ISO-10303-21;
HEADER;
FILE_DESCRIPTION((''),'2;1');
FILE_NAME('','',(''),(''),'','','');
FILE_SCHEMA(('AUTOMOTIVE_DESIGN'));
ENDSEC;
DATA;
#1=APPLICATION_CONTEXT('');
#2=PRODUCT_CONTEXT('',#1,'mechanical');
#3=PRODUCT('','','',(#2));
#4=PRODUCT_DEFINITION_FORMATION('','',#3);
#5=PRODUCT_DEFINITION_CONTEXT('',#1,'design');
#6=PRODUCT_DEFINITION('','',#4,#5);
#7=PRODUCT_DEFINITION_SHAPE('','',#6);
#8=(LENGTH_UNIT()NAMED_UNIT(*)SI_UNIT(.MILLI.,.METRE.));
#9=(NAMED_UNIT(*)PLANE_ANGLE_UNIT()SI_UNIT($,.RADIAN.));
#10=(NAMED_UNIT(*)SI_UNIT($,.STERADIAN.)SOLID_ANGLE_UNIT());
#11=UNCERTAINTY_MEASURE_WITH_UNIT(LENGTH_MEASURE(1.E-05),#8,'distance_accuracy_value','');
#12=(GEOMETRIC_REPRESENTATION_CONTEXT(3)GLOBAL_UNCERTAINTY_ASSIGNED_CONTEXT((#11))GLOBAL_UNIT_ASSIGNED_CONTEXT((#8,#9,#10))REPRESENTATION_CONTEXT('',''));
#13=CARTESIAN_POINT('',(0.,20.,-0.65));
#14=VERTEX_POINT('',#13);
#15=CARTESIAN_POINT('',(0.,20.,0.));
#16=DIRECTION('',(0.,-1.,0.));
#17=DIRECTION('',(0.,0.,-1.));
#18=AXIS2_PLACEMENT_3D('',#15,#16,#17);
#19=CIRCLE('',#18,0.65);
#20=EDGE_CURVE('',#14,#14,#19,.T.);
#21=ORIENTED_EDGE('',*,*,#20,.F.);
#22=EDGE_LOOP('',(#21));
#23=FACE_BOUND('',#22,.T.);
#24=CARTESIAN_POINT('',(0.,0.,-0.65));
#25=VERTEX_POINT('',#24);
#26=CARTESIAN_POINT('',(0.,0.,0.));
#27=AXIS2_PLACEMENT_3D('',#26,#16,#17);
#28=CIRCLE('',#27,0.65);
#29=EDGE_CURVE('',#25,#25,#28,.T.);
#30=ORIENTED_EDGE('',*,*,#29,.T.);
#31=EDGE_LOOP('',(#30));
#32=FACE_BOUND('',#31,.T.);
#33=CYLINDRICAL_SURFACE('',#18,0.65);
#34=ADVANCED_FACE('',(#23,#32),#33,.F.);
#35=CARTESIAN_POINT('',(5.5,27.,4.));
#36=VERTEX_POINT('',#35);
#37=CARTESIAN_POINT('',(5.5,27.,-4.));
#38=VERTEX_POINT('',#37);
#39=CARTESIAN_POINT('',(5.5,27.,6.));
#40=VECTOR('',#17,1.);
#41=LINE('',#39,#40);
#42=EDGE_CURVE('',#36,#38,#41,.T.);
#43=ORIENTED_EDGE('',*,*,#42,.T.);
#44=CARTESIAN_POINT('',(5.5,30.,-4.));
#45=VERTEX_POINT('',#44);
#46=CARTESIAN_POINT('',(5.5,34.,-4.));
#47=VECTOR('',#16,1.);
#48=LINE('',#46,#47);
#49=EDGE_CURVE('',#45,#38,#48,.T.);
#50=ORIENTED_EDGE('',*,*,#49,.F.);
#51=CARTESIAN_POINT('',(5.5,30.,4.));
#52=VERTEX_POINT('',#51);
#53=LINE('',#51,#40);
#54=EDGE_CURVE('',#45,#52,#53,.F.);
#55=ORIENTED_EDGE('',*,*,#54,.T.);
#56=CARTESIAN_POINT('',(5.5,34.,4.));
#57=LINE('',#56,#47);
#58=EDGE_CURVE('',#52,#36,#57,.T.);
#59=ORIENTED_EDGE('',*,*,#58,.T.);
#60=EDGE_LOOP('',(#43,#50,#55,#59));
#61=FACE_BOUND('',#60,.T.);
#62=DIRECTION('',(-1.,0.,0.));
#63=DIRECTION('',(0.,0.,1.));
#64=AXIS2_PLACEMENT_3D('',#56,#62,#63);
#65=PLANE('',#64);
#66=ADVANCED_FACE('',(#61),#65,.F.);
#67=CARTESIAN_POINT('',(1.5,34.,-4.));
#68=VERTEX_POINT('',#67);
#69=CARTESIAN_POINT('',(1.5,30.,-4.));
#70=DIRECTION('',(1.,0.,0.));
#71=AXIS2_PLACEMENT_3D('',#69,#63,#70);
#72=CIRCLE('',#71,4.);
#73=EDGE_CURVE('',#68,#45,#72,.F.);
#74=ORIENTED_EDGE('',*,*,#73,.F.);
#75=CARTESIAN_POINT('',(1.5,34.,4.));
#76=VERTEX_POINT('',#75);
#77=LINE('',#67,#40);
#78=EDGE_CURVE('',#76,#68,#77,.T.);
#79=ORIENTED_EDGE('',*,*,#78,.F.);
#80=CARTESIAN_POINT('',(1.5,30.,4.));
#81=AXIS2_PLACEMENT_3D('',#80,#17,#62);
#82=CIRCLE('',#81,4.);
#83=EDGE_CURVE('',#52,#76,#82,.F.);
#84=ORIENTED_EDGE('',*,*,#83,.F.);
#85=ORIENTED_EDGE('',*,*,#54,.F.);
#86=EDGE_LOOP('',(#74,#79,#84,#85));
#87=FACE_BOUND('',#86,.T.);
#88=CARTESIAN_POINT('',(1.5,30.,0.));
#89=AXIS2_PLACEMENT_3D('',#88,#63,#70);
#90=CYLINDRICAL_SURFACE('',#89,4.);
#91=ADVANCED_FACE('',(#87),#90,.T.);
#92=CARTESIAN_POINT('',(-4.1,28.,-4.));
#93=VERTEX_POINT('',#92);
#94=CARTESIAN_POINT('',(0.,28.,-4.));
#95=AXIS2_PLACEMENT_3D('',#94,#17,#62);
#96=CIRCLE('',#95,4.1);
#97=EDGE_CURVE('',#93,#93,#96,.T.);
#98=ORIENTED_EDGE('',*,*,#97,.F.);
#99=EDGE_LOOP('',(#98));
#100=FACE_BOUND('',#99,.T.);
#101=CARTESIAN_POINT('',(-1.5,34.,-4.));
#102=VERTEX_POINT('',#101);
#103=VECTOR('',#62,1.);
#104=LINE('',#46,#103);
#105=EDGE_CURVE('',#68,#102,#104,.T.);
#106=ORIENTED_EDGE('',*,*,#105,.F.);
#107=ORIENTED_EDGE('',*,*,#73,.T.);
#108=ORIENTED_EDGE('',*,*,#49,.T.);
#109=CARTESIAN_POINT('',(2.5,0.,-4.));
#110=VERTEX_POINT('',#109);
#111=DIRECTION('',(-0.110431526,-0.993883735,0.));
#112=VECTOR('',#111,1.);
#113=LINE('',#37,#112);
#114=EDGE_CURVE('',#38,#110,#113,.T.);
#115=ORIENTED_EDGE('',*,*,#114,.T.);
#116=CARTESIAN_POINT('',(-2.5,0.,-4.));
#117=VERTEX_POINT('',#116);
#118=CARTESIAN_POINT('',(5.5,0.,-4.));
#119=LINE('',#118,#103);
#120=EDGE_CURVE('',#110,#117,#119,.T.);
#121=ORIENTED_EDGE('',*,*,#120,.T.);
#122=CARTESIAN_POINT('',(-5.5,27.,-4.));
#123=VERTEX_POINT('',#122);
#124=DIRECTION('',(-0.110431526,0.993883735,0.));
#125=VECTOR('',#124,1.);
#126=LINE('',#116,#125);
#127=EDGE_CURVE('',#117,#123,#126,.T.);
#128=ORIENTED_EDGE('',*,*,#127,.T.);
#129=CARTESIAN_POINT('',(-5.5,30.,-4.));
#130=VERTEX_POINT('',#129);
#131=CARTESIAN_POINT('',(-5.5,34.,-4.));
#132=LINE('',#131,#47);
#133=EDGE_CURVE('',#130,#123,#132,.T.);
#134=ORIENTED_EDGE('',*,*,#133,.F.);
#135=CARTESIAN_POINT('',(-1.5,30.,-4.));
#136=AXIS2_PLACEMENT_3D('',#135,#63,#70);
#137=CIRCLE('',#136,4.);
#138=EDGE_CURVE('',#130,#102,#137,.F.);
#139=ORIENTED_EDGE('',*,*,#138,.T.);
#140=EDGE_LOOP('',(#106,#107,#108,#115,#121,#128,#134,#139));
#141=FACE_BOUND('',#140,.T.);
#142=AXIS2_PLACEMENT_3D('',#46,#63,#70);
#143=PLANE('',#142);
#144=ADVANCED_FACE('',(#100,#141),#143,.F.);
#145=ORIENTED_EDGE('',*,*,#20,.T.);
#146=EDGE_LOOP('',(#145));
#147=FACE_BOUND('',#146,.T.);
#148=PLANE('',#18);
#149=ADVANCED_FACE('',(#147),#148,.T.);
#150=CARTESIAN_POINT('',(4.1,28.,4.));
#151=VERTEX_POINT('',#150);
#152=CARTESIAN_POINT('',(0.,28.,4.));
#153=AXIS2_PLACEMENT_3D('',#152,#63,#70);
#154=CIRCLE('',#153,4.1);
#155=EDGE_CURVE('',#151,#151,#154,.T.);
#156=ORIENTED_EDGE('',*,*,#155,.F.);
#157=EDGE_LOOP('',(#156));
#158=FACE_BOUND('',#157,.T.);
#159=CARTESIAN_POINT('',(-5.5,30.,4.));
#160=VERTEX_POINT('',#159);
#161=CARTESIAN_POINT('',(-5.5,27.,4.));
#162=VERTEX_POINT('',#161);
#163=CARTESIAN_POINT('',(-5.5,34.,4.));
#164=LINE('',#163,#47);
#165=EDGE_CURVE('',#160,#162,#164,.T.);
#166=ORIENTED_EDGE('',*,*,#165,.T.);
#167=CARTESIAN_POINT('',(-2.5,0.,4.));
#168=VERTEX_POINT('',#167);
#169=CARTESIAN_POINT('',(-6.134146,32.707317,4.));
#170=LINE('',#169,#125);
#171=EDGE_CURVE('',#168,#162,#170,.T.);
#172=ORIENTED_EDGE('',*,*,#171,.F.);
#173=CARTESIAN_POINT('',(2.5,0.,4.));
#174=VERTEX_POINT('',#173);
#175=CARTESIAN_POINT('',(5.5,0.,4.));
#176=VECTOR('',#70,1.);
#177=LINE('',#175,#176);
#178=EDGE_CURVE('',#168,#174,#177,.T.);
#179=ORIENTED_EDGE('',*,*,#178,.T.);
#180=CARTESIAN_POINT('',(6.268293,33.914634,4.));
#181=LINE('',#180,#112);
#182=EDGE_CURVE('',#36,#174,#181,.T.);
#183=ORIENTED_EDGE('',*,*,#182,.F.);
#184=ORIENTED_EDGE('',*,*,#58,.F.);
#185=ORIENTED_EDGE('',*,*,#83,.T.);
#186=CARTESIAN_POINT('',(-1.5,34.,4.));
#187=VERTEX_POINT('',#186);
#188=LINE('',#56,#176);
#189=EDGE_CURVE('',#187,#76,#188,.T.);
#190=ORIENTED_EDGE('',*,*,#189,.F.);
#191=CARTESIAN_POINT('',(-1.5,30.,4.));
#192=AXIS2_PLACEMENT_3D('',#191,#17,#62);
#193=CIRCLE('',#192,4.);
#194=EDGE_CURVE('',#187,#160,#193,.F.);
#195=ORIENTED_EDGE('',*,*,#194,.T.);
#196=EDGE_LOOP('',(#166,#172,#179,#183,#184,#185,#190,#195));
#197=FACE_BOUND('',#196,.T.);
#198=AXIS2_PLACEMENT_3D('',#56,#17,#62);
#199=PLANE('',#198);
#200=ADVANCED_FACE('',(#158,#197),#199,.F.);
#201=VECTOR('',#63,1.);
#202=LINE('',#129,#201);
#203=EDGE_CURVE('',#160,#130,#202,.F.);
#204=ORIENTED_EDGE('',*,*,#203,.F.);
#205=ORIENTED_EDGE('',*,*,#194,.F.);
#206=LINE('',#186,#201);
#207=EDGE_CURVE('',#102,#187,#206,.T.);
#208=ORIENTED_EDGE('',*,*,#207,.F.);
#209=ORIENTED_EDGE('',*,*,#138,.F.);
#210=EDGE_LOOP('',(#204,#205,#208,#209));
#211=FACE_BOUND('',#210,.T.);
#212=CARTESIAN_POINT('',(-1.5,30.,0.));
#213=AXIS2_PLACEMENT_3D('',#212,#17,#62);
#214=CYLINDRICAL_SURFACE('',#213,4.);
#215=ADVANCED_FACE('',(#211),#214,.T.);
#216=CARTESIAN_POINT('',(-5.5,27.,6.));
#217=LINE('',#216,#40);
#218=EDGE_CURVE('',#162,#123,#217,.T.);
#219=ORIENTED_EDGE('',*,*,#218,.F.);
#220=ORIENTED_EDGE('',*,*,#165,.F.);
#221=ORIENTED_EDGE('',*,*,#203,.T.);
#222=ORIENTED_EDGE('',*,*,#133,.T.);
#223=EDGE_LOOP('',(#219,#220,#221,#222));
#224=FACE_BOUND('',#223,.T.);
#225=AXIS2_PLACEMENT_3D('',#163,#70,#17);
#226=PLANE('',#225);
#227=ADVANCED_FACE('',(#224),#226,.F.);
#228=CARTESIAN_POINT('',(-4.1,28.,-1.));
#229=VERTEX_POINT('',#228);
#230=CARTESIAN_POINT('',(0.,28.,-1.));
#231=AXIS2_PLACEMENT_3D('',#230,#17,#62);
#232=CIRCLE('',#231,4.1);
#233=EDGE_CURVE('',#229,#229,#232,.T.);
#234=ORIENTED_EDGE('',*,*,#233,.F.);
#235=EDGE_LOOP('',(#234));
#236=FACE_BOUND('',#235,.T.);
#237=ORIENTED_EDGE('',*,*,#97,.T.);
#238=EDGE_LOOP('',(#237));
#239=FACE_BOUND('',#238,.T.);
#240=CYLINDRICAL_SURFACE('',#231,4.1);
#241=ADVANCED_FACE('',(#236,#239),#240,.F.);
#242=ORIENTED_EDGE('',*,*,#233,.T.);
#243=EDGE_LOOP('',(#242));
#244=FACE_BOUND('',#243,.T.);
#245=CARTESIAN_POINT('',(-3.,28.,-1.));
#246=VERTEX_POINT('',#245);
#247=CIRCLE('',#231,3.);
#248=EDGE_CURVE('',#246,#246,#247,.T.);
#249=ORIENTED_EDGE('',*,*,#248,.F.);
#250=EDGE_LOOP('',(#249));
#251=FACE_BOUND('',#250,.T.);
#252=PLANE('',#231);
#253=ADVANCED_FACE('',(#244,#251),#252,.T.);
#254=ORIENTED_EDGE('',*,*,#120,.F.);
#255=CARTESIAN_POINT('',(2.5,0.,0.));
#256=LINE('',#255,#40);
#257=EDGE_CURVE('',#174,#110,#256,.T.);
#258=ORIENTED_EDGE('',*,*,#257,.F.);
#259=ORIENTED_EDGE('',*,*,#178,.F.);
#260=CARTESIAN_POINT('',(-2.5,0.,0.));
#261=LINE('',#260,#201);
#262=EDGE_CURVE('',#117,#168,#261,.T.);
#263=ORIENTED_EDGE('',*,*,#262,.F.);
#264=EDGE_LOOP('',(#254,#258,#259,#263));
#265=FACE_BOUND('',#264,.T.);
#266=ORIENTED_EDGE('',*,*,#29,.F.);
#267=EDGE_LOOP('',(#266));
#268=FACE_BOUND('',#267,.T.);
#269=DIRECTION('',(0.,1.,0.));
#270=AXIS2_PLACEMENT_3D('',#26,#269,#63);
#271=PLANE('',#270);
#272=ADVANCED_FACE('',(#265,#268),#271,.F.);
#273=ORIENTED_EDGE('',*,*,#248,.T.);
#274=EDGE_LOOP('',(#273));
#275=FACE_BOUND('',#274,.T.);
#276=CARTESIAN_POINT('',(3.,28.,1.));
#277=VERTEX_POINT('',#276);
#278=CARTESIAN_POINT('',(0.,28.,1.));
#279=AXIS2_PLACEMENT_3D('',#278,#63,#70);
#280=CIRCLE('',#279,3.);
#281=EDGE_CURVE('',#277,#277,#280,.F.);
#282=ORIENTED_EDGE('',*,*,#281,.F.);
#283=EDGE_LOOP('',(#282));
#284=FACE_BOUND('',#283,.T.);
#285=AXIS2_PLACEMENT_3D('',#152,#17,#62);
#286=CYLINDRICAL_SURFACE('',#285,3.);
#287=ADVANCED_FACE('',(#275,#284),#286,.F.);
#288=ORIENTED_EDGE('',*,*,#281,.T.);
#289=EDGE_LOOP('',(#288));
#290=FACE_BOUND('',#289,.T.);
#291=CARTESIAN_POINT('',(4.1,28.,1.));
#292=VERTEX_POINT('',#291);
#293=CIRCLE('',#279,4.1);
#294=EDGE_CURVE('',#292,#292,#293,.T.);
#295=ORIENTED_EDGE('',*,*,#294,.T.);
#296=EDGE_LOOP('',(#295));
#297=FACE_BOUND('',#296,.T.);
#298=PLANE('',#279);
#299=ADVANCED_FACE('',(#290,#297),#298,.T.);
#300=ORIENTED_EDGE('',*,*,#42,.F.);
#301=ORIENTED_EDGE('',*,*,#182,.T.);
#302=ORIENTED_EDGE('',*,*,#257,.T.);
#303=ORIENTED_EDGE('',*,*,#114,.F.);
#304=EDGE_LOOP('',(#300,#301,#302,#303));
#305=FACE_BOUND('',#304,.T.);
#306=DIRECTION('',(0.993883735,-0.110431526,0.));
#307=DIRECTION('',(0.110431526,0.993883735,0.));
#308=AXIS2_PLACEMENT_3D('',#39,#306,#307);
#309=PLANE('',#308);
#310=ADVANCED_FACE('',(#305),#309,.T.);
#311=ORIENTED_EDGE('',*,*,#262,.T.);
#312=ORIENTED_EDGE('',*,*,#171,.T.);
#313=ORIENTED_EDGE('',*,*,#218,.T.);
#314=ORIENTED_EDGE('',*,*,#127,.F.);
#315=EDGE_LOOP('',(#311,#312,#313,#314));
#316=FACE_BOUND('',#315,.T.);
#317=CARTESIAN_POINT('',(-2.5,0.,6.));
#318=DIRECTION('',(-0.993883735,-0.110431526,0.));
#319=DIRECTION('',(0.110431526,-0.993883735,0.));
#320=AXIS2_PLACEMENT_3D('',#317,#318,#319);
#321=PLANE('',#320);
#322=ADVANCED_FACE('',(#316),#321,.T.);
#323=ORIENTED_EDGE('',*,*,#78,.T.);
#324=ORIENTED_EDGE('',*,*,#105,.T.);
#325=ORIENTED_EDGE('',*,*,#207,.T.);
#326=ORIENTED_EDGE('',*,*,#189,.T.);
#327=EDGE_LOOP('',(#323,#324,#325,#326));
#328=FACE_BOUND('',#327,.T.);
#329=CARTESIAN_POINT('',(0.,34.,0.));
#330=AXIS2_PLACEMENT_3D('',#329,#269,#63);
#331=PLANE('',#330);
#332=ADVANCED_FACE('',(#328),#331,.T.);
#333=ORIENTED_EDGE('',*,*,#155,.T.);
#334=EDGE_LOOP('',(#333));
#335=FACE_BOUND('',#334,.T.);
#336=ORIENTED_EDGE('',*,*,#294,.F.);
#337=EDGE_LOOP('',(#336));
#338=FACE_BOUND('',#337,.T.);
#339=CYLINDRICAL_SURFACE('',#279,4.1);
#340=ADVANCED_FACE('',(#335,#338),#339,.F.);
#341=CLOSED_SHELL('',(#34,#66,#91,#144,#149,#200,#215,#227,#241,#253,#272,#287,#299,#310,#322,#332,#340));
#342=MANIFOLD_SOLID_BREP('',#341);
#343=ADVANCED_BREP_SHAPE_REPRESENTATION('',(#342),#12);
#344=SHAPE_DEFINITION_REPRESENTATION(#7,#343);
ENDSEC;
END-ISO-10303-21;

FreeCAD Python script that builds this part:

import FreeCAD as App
import Part
import Sketcher

V = App.Vector
Q = App.Units.Quantity


def edges_at(feature, points):
    """Names of the edges that pass closest to the given points."""
    edges = feature.Shape.Edges
    near = lambda p: min(range(len(edges)), key=lambda i: edges[i].distToShape(Part.Vertex(*p))[0])
    return sorted({f"Edge{near(p) + 1}" for p in points})


def add_polygon(sketch, points):
    """Adds a closed chain of lines whose ends are joined by coincident constraints."""
    first, n = sketch.GeometryCount, len(points)
    for a, b in zip(points, points[1:] + points[:1]):
        sketch.addGeometry(Part.LineSegment(App.Vector(*a, 0), App.Vector(*b, 0)), False)
    for i in range(n):
        sketch.addConstraint(Sketcher.Constraint("Coincident", first + i, 2, first + (i + 1) % n, 1))

doc = App.newDocument("Part")
body = doc.addObject("PartDesign::Body", "Body")

# Sketch on XZ plane
sketch1 = body.newObject("Sketcher::SketchObject", "Sketch")
sketch1.AttachmentSupport = (doc.getObject("XZ_Plane"), [""])
sketch1.MapMode = "FlatFace"
add_polygon(sketch1, [(-6, -4), (-6, 4), (6, 4), (6, -4)])  # lines 0-3
sketch1.addConstraint([
    Sketcher.Constraint("Vertical", 0),
    Sketcher.Constraint("Horizontal", 1),
    Sketcher.Constraint("Vertical", 2),
    Sketcher.Constraint("Horizontal", 3),
    Sketcher.Constraint("Symmetric", 0, 2, 2, 2, -1, 1),
    Sketcher.Constraint("DistanceX", 1, 1, 1, 2, Q("11 mm")),
    Sketcher.Constraint("DistanceY", 0, 1, 0, 2, Q("8 mm")),
])
pad1 = body.newObject("PartDesign::Pad", "Pad")
pad1.Profile = sketch1
pad1.Length = 34
pad1.Reversed = True

# Sketch on XY plane
sketch2 = body.newObject("Sketcher::SketchObject", "Sketch001")
sketch2.AttachmentSupport = (doc.getObject("XY_Plane"), [""])
sketch2.MapMode = "FlatFace"
sketch2.AttachmentOffset = App.Placement(V(0, 0, -4), App.Rotation())
sketch2.addGeometry(Part.Circle(V(0, 28, 0), V(0, 0, 1), 4.1), False)
sketch2.addConstraint([
    Sketcher.Constraint("PointOnObject", 0, 3, -2),
    Sketcher.Constraint("Diameter", 0, Q("8.2 mm")),
    Sketcher.Constraint("DistanceY", -1, 1, 0, 3, Q("28 mm")),
])
pocket1 = body.newObject("PartDesign::Pocket", "Pocket")
pocket1.Profile = sketch2
pocket1.Length = 3
pocket1.Reversed = True

# Sketch on XY plane
sketch3 = body.newObject("Sketcher::SketchObject", "Sketch002")
sketch3.AttachmentSupport = (doc.getObject("XY_Plane"), [""])
sketch3.MapMode = "FlatFace"
sketch3.AttachmentOffset = App.Placement(V(0, 0, -1), App.Rotation())
sketch3.addGeometry(Part.Circle(V(0, 28, 0), V(0, 0, 1), 3), False)
sketch3.addConstraint([
    Sketcher.Constraint("PointOnObject", 0, 3, -2),
    Sketcher.Constraint("Diameter", 0, Q("6 mm")),
    Sketcher.Constraint("DistanceY", -1, 1, 0, 3, Q("28 mm")),
])
pocket2 = body.newObject("PartDesign::Pocket", "Pocket001")
pocket2.Profile = sketch3
pocket2.Type = "ThroughAll"
pocket2.Reversed = True

# Sketch on XY plane
sketch4 = body.newObject("Sketcher::SketchObject", "Sketch003")
sketch4.AttachmentSupport = (doc.getObject("XY_Plane"), [""])
sketch4.MapMode = "FlatFace"
sketch4.AttachmentOffset = App.Placement(V(0, 0, -4), App.Rotation())
add_polygon(sketch4, [(10, 39), (10, -5), (-10, -5), (-10, 39)])  # lines 0-3
add_polygon(sketch4, [(2, 0), (6, 27), (6, 34), (-6, 34), (-6, 27), (-2, 0)])  # lines 4-9
sketch4.addConstraint([
    Sketcher.Constraint("Vertical", 0),
    Sketcher.Constraint("Horizontal", 1),
    Sketcher.Constraint("Vertical", 2),
    Sketcher.Constraint("Horizontal", 3),
    Sketcher.Constraint("Vertical", 5),
    Sketcher.Constraint("Horizontal", 6),
    Sketcher.Constraint("Vertical", 7),
    Sketcher.Constraint("Horizontal", 9),
    Sketcher.Constraint("Symmetric", 8, 2, 9, 2, -1, 1),
    Sketcher.Constraint("Symmetric", 4, 2, 7, 2, -2),
    Sketcher.Constraint("DistanceX", 6, 2, 6, 1, Q("11 mm")),
    Sketcher.Constraint("DistanceX", 9, 1, 9, 2, Q("5 mm")),
    Sketcher.Constraint("DistanceY", 5, 1, 5, 2, Q("7 mm")),
    Sketcher.Constraint("DistanceY", -1, 1, 4, 2, Q("27 mm")),
    Sketcher.Constraint("DistanceX", 1, 2, 1, 1, Q("20.324 mm")),
    Sketcher.Constraint("DistanceY", 0, 2, 0, 1, Q("43.324 mm")),
    Sketcher.Constraint("DistanceX", -1, 1, 0, 2, Q("10.162 mm")),
    Sketcher.Constraint("DistanceY", 0, 2, -1, 1, Q("4.662 mm")),
])
pocket3 = body.newObject("PartDesign::Pocket", "Pocket002")
pocket3.Profile = sketch4
pocket3.Length = 10
pocket3.Reversed = True
doc.recompute()

fillet = body.newObject("PartDesign::Fillet", "Fillet")
fillet.Base = (pocket3, edges_at(pocket3, [(5.5, 34, 0), (-5.5, 34, 0)]))
fillet.Radius = 4

# Sketch on XZ plane
sketch5 = body.newObject("Sketcher::SketchObject", "Sketch004")
sketch5.AttachmentSupport = (doc.getObject("XZ_Plane"), [""])
sketch5.MapMode = "FlatFace"
sketch5.addGeometry(Part.Circle(V(0, 0, 0), V(0, 0, 1), 0.7), False)
sketch5.addConstraint([
    Sketcher.Constraint("Coincident", 0, 3, -1, 1),
    Sketcher.Constraint("Diameter", 0, Q("1.3 mm")),
])
pocket4 = body.newObject("PartDesign::Pocket", "Pocket003")
pocket4.Profile = sketch5
pocket4.Length = 20

# Sketch on XY plane
sketch6 = body.newObject("Sketcher::SketchObject", "Sketch005")
sketch6.AttachmentSupport = (doc.getObject("XY_Plane"), [""])
sketch6.MapMode = "FlatFace"
sketch6.AttachmentOffset = App.Placement(V(0, 0, 4), App.Rotation())
sketch6.addGeometry(Part.Circle(V(0, 28, 0), V(0, 0, 1), 4.1), False)
sketch6.addConstraint([
    Sketcher.Constraint("PointOnObject", 0, 3, -2),
    Sketcher.Constraint("Diameter", 0, Q("8.2 mm")),
    Sketcher.Constraint("DistanceY", -1, 1, 0, 3, Q("28 mm")),
])
pocket5 = body.newObject("PartDesign::Pocket", "Pocket004")
pocket5.Profile = sketch6
pocket5.Length = 3

doc.recompute()
